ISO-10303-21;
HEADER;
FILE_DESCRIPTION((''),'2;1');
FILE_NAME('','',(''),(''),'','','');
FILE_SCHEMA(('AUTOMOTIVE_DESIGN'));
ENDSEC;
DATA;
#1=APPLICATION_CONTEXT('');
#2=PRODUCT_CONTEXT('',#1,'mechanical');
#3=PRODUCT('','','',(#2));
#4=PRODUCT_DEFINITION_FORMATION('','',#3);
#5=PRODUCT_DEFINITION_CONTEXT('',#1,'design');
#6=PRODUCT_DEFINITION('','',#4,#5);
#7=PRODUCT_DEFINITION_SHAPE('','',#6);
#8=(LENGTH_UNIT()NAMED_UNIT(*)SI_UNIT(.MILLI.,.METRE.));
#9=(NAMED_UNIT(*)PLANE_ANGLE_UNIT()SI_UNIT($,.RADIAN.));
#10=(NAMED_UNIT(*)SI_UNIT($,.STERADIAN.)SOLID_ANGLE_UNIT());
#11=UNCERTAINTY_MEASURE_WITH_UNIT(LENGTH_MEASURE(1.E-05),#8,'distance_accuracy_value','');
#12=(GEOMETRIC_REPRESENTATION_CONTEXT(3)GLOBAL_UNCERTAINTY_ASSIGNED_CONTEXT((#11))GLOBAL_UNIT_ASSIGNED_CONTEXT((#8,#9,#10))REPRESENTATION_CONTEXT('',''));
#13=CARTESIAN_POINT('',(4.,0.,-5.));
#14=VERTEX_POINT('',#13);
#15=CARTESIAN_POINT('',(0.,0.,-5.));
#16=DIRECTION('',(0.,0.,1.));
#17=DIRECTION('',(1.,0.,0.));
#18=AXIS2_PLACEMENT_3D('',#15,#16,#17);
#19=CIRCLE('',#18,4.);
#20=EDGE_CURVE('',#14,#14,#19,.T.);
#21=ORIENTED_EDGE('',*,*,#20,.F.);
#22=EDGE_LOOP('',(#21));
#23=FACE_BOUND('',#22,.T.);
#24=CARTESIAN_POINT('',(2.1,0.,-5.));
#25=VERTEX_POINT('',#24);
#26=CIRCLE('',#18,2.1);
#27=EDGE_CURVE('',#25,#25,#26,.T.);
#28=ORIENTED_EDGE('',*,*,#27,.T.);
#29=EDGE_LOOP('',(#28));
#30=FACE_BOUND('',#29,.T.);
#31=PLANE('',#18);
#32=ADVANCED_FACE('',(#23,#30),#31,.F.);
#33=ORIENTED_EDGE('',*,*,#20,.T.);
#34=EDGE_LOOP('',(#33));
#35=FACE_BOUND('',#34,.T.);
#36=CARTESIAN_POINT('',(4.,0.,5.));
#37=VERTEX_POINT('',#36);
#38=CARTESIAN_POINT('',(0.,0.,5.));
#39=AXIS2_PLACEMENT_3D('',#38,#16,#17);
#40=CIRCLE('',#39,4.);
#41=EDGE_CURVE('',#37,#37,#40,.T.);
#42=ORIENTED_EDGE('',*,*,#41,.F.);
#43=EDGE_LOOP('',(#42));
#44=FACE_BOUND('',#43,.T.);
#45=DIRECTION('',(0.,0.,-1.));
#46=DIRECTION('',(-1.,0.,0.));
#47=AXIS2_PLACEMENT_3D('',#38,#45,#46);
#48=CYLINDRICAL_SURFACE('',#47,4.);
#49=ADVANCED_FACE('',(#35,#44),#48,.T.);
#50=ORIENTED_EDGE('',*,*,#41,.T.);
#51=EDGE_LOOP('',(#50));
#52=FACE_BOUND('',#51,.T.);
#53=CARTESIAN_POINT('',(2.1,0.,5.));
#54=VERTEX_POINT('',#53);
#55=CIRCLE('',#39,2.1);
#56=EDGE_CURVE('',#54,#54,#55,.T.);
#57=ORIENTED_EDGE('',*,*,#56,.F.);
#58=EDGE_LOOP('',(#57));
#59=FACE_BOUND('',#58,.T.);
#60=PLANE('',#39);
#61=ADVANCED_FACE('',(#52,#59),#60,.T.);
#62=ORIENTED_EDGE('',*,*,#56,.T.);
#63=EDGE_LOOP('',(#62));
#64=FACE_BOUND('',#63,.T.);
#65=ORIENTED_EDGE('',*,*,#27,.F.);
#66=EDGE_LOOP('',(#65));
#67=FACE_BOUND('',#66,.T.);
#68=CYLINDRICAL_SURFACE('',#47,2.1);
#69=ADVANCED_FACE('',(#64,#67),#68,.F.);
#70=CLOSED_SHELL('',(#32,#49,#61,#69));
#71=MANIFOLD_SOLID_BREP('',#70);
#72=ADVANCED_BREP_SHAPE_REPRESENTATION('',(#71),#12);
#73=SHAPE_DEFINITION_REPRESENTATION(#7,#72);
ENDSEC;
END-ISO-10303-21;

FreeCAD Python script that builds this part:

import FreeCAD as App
import Part
import Sketcher

doc = App.newDocument("Part")
body = doc.addObject("PartDesign::Body", "Body")

# Sketch on XY plane
sketch1 = body.newObject("Sketcher::SketchObject", "Sketch")
sketch1.AttachmentSupport = (doc.getObject("XY_Plane"), [""])
sketch1.MapMode = "FlatFace"
sketch1.addGeometry([
    Part.Circle(App.Vector(0, 0, 0), App.Vector(0, 0, 1), 4),
    Part.Circle(App.Vector(0, 0, 0), App.Vector(0, 0, 1), 2.1),
], False)
sketch1.addConstraint([
    Sketcher.Constraint("Coincident", 0, 3, -1, 1),
    Sketcher.Constraint("Coincident", 1, 3, -1, 1),
    Sketcher.Constraint("Diameter", 0, 8.0),
    Sketcher.Constraint("Diameter", 1, 4.2),
])
pad1 = body.newObject("PartDesign::Pad", "Pad")
pad1.Profile = sketch1
pad1.Length = 10
pad1.Midplane = True

doc.recompute()
